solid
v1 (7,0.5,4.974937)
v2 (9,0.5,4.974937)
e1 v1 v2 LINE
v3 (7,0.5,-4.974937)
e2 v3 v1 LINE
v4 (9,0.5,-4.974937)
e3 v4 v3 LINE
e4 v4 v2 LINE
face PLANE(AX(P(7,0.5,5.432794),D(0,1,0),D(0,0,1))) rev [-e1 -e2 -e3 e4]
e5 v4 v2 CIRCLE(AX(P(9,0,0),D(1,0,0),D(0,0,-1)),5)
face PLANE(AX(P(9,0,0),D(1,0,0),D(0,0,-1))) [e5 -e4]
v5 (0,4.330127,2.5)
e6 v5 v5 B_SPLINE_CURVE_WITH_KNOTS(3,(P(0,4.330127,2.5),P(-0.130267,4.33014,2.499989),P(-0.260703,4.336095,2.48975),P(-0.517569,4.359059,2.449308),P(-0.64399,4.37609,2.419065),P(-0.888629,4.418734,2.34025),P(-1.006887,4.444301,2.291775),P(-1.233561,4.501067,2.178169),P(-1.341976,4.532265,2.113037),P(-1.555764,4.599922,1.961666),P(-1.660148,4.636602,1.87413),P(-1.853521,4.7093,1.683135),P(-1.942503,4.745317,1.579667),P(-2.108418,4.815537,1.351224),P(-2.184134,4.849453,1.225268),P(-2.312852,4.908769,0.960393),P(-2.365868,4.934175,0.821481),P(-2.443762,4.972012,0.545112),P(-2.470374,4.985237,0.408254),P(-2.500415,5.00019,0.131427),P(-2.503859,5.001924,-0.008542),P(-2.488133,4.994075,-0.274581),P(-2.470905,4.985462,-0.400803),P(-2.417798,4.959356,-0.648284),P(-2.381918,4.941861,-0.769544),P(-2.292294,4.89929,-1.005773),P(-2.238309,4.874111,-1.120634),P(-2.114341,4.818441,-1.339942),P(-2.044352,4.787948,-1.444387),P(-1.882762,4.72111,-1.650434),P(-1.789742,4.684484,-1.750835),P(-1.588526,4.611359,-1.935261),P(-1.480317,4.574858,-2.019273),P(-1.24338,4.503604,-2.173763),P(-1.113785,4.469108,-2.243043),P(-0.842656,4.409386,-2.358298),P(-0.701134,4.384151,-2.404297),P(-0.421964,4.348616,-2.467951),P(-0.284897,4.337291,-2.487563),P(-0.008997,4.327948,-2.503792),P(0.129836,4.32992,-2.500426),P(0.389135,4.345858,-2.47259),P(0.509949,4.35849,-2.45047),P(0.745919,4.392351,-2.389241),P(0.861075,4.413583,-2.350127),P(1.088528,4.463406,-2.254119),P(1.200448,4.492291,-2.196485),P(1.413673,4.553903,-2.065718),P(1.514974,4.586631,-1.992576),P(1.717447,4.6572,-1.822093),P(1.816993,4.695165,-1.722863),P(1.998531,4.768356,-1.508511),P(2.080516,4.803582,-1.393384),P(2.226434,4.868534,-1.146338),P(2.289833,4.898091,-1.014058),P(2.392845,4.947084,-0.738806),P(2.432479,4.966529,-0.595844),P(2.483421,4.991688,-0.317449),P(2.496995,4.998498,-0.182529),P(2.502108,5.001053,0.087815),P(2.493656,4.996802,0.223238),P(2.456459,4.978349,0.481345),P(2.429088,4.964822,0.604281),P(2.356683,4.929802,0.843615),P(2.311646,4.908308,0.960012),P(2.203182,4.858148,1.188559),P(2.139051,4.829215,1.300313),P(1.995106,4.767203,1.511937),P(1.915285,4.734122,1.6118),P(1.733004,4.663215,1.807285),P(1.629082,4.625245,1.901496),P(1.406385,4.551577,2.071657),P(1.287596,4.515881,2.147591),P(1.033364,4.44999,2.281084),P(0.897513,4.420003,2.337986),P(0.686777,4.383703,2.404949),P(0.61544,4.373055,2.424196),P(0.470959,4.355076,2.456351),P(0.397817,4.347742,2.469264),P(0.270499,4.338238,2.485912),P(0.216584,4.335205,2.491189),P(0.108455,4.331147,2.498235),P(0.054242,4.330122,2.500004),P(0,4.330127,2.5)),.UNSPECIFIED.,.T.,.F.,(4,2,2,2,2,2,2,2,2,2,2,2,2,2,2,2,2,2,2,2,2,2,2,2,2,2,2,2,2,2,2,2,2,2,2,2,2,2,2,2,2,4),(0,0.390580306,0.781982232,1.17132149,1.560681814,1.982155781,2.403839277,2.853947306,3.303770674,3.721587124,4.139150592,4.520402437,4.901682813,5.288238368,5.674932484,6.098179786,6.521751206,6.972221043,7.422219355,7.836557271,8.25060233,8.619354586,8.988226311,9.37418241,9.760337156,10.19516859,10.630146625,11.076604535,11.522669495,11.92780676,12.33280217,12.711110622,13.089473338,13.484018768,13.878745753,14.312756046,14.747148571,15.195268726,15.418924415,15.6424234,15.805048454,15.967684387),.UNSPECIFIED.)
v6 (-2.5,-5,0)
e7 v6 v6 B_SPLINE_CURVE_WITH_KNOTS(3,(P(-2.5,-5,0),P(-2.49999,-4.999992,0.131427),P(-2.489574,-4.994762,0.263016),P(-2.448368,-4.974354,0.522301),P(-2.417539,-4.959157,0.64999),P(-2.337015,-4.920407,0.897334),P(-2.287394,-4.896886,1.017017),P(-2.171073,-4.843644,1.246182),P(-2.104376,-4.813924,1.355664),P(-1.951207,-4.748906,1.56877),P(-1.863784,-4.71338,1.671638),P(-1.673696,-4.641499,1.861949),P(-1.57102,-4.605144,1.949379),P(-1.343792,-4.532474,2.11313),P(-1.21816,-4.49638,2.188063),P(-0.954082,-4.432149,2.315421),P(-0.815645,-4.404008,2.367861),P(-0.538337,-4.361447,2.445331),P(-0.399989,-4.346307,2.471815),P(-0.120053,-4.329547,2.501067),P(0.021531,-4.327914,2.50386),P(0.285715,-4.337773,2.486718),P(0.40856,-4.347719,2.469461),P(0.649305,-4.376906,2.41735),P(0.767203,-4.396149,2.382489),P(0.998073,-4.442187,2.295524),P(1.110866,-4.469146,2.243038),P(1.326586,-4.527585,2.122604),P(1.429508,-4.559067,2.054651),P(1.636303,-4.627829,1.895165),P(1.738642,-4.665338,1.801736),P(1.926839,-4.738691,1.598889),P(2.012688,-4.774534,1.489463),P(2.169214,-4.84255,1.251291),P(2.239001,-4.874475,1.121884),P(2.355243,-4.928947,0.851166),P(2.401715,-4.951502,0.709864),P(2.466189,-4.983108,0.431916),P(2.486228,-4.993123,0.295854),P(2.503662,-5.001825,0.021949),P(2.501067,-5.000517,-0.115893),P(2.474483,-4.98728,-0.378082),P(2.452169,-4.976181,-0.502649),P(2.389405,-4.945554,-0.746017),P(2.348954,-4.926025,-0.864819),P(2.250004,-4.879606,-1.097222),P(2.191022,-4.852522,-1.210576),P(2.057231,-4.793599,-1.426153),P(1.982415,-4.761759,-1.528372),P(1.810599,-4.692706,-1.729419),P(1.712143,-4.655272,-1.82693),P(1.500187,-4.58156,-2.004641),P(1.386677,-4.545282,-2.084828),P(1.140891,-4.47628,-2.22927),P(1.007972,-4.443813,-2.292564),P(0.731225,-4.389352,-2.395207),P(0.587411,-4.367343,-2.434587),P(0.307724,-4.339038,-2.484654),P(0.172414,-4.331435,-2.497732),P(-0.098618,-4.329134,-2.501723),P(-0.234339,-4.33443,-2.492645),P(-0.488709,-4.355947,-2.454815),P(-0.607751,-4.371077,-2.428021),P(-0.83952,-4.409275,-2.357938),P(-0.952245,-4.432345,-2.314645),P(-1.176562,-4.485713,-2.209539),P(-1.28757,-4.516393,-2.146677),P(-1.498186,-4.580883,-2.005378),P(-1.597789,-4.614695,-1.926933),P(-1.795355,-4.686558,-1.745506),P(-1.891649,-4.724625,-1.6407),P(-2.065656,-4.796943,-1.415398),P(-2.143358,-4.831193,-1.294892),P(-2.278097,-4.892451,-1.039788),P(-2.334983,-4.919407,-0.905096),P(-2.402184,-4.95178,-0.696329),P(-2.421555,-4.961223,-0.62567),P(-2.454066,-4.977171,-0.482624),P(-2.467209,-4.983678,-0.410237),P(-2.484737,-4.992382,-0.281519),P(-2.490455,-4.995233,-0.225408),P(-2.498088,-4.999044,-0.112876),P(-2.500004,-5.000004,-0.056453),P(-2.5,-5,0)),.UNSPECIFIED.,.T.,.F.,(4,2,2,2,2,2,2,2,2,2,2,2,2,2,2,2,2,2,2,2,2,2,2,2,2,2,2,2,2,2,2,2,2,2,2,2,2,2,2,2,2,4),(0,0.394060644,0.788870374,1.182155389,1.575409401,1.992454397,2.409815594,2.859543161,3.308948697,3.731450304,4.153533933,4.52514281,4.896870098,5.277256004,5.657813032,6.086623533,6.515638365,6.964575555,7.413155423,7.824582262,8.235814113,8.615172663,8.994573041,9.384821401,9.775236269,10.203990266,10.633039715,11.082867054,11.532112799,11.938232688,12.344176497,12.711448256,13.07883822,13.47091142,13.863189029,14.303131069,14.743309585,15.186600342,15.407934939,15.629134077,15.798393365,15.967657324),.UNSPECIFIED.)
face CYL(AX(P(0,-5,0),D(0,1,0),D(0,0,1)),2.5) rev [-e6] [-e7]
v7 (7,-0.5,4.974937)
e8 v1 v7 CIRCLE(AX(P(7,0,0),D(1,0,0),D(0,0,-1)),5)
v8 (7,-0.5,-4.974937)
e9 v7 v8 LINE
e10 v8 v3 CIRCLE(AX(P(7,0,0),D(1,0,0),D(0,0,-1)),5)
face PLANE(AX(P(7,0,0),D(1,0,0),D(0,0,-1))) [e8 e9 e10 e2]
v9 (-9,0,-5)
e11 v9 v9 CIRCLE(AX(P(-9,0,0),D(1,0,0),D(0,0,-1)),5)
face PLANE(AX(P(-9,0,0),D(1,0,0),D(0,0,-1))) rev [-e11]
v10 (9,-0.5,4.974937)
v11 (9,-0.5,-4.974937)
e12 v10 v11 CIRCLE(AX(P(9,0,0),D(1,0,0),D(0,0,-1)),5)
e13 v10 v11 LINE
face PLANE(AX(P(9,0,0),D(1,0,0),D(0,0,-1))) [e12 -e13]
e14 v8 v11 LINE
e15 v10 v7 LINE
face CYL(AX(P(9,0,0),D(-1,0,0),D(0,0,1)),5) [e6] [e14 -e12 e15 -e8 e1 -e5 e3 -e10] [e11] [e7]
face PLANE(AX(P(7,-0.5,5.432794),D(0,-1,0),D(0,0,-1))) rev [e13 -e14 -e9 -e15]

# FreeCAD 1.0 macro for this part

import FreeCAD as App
import Part
import Sketcher
Q = App.Units.Quantity


def add_polygon(sketch, points):
    """Adds a closed chain of lines whose ends are joined by coincident constraints."""
    first, n = sketch.GeometryCount, len(points)
    for a, b in zip(points, points[1:] + points[:1]):
        sketch.addGeometry(Part.LineSegment(App.Vector(*a, 0), App.Vector(*b, 0)), False)
    for i in range(n):
        sketch.addConstraint(Sketcher.Constraint("Coincident", first + i, 2, first + (i + 1) % n, 1))

doc = App.newDocument("Part")
body = doc.addObject("PartDesign::Body", "Body")

# Sketch on YZ plane
sketch1 = body.newObject("Sketcher::SketchObject", "Sketch")
sketch1.AttachmentSupport = (doc.getObject("YZ_Plane"), [""])
sketch1.MapMode = "FlatFace"
sketch1.addGeometry(Part.Circle(App.Vector(0, 0, 0), App.Vector(0, 0, 1), 5), False)
sketch1.addConstraint([
    Sketcher.Constraint("Coincident", 0, 3, -1, 1),
    Sketcher.Constraint("Diameter", 0, Q("10 mm")),
])
pad1 = body.newObject("PartDesign::Pad", "Pad")
pad1.Profile = sketch1
pad1.Type = "TwoLengths"
pad1.Length = 9
pad1.Length2 = 9

# Sketch on XZ plane
sketch2 = body.newObject("Sketcher::SketchObject", "Sketch001")
sketch2.AttachmentSupport = (doc.getObject("XZ_Plane"), [""])
sketch2.MapMode = "FlatFace"
sketch2.addGeometry(Part.Circle(App.Vector(0, 0, 0), App.Vector(0, 0, 1), 2.5), False)
sketch2.addConstraint([
    Sketcher.Constraint("Coincident", 0, 3, -1, 1),
    Sketcher.Constraint("Diameter", 0, Q("5 mm")),
])
pocket1 = body.newObject("PartDesign::Pocket", "Pocket")
pocket1.Profile = sketch2
pocket1.Type = "ThroughAll"
pocket1.Midplane = True

# Sketch on YZ plane
sketch3 = body.newObject("Sketcher::SketchObject", "Sketch002")
sketch3.AttachmentSupport = (doc.getObject("YZ_Plane"), [""])
sketch3.MapMode = "FlatFace"
sketch3.AttachmentOffset = App.Placement(App.Vector(0, 0, 9), App.Rotation())
add_polygon(sketch3, [(0.5, 5.4), (-0.5, 5.4), (-0.5, -5.4), (0.5, -5.4)])  # lines 0-3
sketch3.addConstraint([
    Sketcher.Constraint("Horizontal", 0),
    Sketcher.Constraint("Vertical", 1),
    Sketcher.Constraint("Horizontal", 2),
    Sketcher.Constraint("Vertical", 3),
    Sketcher.Constraint("Symmetric", 0, 2, 2, 2, -1, 1),
    Sketcher.Constraint("DistanceX", 0, 2, 0, 1, Q("1 mm")),
    Sketcher.Constraint("DistanceY", 1, 2, 1, 1, Q("10.865587 mm")),
])
pocket2 = body.newObject("PartDesign::Pocket", "Pocket001")
pocket2.Profile = sketch3
pocket2.Length = 2

doc.recompute()
